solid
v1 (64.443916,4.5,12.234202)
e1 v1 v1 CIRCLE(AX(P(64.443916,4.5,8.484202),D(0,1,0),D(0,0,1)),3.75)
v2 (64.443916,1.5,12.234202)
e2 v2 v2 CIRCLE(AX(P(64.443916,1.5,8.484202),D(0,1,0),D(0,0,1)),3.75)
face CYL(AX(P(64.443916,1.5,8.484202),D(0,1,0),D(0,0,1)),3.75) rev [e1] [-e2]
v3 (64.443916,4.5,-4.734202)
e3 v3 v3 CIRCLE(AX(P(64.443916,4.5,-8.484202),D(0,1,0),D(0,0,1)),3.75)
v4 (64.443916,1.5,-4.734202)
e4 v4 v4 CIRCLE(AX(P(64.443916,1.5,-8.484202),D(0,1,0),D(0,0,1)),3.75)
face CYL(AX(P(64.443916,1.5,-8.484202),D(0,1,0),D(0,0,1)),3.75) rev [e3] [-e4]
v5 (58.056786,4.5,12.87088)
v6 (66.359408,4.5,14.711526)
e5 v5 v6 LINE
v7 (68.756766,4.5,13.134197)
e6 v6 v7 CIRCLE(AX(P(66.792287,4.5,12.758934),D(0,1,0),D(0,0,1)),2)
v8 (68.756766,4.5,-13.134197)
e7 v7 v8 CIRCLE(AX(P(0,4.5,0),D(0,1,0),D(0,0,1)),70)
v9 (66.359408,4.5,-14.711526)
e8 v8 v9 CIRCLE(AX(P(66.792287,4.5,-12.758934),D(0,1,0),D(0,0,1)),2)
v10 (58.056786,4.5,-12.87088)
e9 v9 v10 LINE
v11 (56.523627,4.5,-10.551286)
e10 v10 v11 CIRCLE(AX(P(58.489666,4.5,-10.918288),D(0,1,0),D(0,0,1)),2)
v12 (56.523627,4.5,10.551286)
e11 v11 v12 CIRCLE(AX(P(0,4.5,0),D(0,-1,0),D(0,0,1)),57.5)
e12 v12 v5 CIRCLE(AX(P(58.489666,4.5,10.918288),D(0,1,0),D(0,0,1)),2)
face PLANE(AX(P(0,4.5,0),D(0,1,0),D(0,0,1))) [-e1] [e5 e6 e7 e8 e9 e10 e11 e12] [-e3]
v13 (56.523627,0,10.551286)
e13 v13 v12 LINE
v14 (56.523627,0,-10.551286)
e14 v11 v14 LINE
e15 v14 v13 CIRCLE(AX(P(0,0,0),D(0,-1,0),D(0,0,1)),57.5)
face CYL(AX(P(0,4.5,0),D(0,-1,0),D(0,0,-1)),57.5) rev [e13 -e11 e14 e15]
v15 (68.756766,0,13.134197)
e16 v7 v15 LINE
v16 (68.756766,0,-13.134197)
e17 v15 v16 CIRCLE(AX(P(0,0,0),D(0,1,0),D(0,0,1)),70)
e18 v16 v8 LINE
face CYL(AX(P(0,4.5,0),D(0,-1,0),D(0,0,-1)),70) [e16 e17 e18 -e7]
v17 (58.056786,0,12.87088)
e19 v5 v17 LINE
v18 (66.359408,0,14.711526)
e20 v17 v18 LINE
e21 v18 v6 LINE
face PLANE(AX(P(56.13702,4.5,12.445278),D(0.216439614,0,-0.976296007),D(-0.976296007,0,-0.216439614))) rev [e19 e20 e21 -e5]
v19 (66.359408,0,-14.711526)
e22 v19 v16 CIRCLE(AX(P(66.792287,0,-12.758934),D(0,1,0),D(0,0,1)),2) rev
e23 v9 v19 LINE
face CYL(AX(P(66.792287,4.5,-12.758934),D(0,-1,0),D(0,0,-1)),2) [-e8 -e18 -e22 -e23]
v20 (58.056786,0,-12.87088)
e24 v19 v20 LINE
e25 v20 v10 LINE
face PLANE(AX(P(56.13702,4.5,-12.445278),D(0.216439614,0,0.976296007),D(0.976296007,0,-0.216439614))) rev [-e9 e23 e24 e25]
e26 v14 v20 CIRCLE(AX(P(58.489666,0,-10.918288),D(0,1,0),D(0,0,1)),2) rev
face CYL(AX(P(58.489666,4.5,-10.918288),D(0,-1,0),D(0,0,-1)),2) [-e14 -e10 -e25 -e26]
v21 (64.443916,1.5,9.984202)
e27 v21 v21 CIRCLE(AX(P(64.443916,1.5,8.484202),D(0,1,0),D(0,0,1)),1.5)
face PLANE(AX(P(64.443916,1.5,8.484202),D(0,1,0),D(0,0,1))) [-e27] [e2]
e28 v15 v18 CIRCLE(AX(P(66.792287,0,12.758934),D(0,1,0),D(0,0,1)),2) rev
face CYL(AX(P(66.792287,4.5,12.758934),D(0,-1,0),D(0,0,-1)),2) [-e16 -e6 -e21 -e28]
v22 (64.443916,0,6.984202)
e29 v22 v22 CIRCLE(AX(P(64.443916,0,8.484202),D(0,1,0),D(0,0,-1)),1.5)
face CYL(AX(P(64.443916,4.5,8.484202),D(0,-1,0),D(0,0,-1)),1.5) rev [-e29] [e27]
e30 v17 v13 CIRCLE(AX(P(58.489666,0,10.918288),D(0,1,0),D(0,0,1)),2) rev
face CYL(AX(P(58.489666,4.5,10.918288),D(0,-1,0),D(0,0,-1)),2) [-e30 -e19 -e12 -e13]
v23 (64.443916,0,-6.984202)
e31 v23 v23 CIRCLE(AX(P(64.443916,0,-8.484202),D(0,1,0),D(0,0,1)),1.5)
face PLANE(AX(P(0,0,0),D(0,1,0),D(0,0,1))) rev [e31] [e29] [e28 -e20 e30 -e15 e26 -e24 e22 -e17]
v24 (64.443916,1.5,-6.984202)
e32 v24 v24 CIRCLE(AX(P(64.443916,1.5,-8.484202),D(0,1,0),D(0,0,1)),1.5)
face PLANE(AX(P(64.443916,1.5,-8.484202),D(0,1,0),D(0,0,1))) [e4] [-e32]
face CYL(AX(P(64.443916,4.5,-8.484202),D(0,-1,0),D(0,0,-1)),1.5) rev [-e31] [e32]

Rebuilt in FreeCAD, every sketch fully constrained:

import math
import FreeCAD as App
import Part
import Sketcher

V = App.Vector
Q = App.Units.Quantity


def edges_at(feature, points):
    """Names of the edges that pass closest to the given points."""
    edges = feature.Shape.Edges
    near = lambda p: min(range(len(edges)), key=lambda i: edges[i].distToShape(Part.Vertex(*p))[0])
    return sorted({f"Edge{near(p) + 1}" for p in points})

doc = App.newDocument("Part")
body = doc.addObject("PartDesign::Body", "Body")

# Sketch on XZ plane
sketch1 = body.newObject("Sketcher::SketchObject", "Sketch")
sketch1.AttachmentSupport = (doc.getObject("XZ_Plane"), [""])
sketch1.MapMode = "FlatFace"
sketch1.addGeometry([
    Part.LineSegment(V(68.3, -15.2, 0), V(56.1, -12.4, 0)),  # 0
    Part.ArcOfCircle(Part.Circle(V(0, 0, 0), V(0, 0, 1), 57.5), math.radians(-13), math.radians(13)),  # 1
    Part.LineSegment(V(56.1, 12.4, 0), V(68.3, 15.2, 0)),  # 2
    Part.ArcOfCircle(Part.Circle(V(0, 0, 0), V(0, 0, 1), 70), math.radians(-13), math.radians(13)),  # 3
    Part.Circle(V(64.4, 8.5, 0), V(0, 0, 1), 1.5),  # 4
    Part.Circle(V(64.4, -8.5, 0), V(0, 0, 1), 1.5),  # 5
], False)
sketch1.addConstraint([
    Sketcher.Constraint("Coincident", 0, 2, 1, 1),
    Sketcher.Constraint("Coincident", 1, 2, 2, 1),
    Sketcher.Constraint("Coincident", 2, 2, 3, 2),
    Sketcher.Constraint("Coincident", 3, 1, 0, 1),
    Sketcher.Constraint("Coincident", 1, 3, -1, 1),
    Sketcher.Constraint("Coincident", 3, 3, -1, 1),
    Sketcher.Constraint("Equal", 4, 5),
    Sketcher.Constraint("Symmetric", 4, 3, 5, 3, -1),
    Sketcher.Constraint("Vertical", 0, 2, 1, 2),
    Sketcher.Constraint("Vertical", 2, 2, 3, 1),
    Sketcher.Constraint("Diameter", 4, 3.0),
    Sketcher.Constraint("Radius", 3, 70.0),
    Sketcher.Constraint("Radius", 1, 57.5),
    Sketcher.Constraint("Angle", 0, Q("167.5 deg")),
    Sketcher.Constraint("DistanceX", -1, 1, 0, 2, 56.13702),
    Sketcher.Constraint("DistanceY", 0, 2, 4, 3, 20.92948),
    Sketcher.Constraint("DistanceX", -1, 1, 4, 3, 64.443916),
])
pad1 = body.newObject("PartDesign::Pad", "Pad")
pad1.Profile = sketch1
pad1.Length = 4.5
pad1.Reversed = True
doc.recompute()

fillet = body.newObject("PartDesign::Fillet", "Fillet")
fillet.Base = (pad1, edges_at(pad1, [
    (68.341, 2.25, 15.151),
    (56.137, 2.25, 12.445),
    (56.137, 2.25, -12.445),
    (68.341, 2.25, -15.151),
]))
fillet.Radius = 2

# Sketch on XZ plane
sketch2 = body.newObject("Sketcher::SketchObject", "Sketch001")
sketch2.AttachmentSupport = (doc.getObject("XZ_Plane"), [""])
sketch2.MapMode = "FlatFace"
sketch2.AttachmentOffset = App.Placement(V(0, 0, -4.5), App.Rotation())
sketch2.addGeometry([
    Part.Circle(V(64.4, -8.5, 0), V(0, 0, 1), 3.8),
    Part.Circle(V(64.4, 8.5, 0), V(0, 0, 1), 3.8),
], False)
sketch2.addConstraint([
    Sketcher.Constraint("Equal", 0, 1),
    Sketcher.Constraint("Symmetric", 0, 3, 1, 3, -1),
    Sketcher.Constraint("Diameter", 0, 7.5),
    Sketcher.Constraint("DistanceX", -1, 1, 0, 3, 64.443916),
    Sketcher.Constraint("DistanceY", 0, 3, -1, 1, 8.484202),
])
pocket1 = body.newObject("PartDesign::Pocket", "Pocket")
pocket1.Profile = sketch2
pocket1.Length = 3
pocket1.Reversed = True

doc.recompute()
